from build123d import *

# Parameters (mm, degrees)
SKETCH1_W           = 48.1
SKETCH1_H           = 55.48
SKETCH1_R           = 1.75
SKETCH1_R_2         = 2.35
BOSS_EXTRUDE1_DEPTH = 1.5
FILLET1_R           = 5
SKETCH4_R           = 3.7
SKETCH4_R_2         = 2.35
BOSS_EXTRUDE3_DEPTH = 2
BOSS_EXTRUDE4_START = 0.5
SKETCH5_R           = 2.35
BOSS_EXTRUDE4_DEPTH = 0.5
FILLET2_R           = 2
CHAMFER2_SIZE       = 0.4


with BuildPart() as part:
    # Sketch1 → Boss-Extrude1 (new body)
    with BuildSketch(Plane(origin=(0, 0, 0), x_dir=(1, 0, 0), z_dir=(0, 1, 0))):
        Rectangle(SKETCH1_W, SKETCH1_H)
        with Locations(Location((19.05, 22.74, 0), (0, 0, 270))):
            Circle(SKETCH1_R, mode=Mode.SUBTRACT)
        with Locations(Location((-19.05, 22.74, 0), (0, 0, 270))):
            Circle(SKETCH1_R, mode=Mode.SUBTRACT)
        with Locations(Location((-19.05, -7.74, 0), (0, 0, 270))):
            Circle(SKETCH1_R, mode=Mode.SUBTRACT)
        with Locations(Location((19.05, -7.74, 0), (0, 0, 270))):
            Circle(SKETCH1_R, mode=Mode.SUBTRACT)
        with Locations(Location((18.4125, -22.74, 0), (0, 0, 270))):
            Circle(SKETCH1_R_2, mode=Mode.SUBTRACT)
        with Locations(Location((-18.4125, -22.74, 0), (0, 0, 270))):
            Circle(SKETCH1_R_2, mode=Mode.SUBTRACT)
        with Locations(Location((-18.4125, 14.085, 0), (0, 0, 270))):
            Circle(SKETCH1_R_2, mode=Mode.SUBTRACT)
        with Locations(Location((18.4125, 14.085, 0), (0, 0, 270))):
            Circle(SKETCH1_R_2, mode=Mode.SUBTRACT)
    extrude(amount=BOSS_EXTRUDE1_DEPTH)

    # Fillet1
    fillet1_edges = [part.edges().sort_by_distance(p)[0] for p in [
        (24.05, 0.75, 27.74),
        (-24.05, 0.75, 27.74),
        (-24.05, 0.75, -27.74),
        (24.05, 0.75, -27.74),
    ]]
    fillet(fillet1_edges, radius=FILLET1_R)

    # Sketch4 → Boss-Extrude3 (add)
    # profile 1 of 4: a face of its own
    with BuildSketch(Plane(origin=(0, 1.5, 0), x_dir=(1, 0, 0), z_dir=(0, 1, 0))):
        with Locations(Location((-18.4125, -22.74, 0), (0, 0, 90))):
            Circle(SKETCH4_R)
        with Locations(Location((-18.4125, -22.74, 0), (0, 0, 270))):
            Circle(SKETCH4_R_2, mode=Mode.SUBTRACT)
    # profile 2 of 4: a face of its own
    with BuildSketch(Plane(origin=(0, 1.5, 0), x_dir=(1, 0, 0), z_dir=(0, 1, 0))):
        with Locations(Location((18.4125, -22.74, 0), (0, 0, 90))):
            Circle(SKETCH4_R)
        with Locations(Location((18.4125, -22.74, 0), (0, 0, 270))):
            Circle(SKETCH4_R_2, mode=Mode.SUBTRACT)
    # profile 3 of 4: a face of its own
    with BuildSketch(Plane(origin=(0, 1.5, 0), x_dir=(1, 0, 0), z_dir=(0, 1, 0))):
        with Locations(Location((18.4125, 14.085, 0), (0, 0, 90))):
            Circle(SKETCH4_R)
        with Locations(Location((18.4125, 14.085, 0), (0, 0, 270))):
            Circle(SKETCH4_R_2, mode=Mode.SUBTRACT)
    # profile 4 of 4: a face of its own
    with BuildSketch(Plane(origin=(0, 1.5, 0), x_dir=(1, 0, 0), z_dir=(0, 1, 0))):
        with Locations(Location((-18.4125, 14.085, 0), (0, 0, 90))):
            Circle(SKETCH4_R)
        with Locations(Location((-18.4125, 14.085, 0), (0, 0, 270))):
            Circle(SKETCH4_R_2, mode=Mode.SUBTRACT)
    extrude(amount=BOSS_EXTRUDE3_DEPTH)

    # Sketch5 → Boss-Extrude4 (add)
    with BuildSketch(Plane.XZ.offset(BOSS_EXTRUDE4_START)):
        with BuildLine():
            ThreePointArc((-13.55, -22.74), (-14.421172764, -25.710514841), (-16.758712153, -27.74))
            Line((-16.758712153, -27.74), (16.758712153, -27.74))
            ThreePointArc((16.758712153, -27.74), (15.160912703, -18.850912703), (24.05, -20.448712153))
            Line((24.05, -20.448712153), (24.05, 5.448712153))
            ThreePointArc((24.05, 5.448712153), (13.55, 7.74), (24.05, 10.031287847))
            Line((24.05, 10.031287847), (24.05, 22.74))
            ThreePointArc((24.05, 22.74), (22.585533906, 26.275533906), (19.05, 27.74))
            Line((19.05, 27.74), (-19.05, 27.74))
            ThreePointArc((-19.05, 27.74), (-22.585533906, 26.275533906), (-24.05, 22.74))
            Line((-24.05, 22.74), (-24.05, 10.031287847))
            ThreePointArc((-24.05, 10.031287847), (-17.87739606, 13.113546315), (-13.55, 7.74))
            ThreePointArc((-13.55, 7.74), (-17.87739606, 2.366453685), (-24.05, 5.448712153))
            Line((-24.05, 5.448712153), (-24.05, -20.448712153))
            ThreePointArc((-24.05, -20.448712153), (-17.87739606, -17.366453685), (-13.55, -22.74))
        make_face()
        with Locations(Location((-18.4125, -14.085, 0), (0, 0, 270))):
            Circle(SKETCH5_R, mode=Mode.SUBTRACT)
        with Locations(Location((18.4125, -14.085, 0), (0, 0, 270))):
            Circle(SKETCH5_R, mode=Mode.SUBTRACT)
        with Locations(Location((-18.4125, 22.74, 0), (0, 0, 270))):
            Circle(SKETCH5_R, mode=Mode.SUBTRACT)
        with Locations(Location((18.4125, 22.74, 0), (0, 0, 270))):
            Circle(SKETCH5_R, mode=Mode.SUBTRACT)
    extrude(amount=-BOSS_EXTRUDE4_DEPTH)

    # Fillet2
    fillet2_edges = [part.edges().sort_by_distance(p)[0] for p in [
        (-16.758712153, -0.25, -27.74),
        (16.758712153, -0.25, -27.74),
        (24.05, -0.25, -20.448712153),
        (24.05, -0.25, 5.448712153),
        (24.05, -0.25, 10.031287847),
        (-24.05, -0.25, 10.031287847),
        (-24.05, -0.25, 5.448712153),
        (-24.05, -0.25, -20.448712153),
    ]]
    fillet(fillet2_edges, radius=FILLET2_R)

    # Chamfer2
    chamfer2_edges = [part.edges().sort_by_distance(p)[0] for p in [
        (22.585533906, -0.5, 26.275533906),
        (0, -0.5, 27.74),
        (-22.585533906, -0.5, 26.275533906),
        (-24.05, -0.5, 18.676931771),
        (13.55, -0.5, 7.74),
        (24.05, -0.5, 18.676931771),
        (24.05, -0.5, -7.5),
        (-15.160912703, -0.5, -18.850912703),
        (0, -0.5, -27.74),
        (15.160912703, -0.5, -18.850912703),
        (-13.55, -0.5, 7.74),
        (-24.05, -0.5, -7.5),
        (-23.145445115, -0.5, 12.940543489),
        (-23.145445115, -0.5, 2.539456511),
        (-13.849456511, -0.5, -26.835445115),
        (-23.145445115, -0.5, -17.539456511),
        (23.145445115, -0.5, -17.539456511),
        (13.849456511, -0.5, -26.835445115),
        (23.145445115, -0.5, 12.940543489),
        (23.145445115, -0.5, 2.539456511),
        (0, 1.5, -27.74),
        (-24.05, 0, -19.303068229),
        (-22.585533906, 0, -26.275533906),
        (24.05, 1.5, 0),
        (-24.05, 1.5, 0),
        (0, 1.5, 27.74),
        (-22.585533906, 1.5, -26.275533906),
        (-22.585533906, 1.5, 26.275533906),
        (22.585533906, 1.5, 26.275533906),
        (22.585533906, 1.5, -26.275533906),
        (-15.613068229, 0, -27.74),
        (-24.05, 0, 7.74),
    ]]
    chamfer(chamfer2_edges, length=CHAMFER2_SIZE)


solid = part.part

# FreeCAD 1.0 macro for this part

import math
import FreeCAD as App
import Part
import Sketcher

V = App.Vector


def edges_at(feature, points):
    """Names of the edges that pass closest to the given points."""
    edges = feature.Shape.Edges
    near = lambda p: min(range(len(edges)), key=lambda i: edges[i].distToShape(Part.Vertex(*p))[0])
    return sorted({f"Edge{near(p) + 1}" for p in points})

doc = App.newDocument("Part")
body = doc.addObject("PartDesign::Body", "Body")

sketch1 = body.newObject("Sketcher::SketchObject", "Sketch")
sketch1.AttachmentSupport = (doc.getObject("XZ_Plane"), [""])
sketch1.MapMode = "FlatFace"
sketch1.addGeometry(Part.LineSegment(V(-24.05, -27.74, 0), V(-24.05, 27.74, 0)), False)
sketch1.addGeometry(Part.LineSegment(V(-24.05, 27.74, 0), V(24.05, 27.74, 0)), False)
sketch1.addGeometry(Part.LineSegment(V(24.05, 27.74, 0), V(24.05, -27.74, 0)), False)
sketch1.addGeometry(Part.LineSegment(V(24.05, -27.74, 0), V(-24.05, -27.74, 0)), False)
sketch1.addGeometry(Part.Circle(V(-18.4125, 22.74, 0), V(0, 0, 1), 2.35), False)
sketch1.addGeometry(Part.Circle(V(-19.05, 7.74, 0), V(0, 0, 1), 1.75), False)
sketch1.addGeometry(Part.Circle(V(18.4125, 22.74, 0), V(0, 0, 1), 2.35), False)
sketch1.addGeometry(Part.Circle(V(19.05, 7.74, 0), V(0, 0, 1), 1.75), False)
sketch1.addGeometry(Part.Circle(V(-18.4125, -14.085, 0), V(0, 0, 1), 2.35), False)
sketch1.addGeometry(Part.Circle(V(-19.05, -22.74, 0), V(0, 0, 1), 1.75), False)
sketch1.addGeometry(Part.Circle(V(18.4125, -14.085, 0), V(0, 0, 1), 2.35), False)
sketch1.addGeometry(Part.Circle(V(19.05, -22.74, 0), V(0, 0, 1), 1.75), False)
sketch1.addConstraint(Sketcher.Constraint("Coincident", 0, 2, 1, 1))
sketch1.addConstraint(Sketcher.Constraint("Coincident", 1, 2, 2, 1))
sketch1.addConstraint(Sketcher.Constraint("Coincident", 2, 2, 3, 1))
sketch1.addConstraint(Sketcher.Constraint("Coincident", 3, 2, 0, 1))
sketch1.addConstraint(Sketcher.Constraint("Vertical", 0))
sketch1.addConstraint(Sketcher.Constraint("Horizontal", 1))
sketch1.addConstraint(Sketcher.Constraint("Vertical", 2))
sketch1.addConstraint(Sketcher.Constraint("Horizontal", 3))
sketch1.addConstraint(Sketcher.Constraint("Equal", 4, 6))
sketch1.addConstraint(Sketcher.Constraint("Equal", 5, 7))
sketch1.addConstraint(Sketcher.Constraint("Equal", 6, 8))
sketch1.addConstraint(Sketcher.Constraint("Equal", 7, 9))
sketch1.addConstraint(Sketcher.Constraint("Equal", 8, 10))
sketch1.addConstraint(Sketcher.Constraint("Equal", 9, 11))
sketch1.addConstraint(Sketcher.Constraint("Symmetric", 0, 2, 2, 2, -1, 1))
sketch1.addConstraint(Sketcher.Constraint("Symmetric", 4, 3, 6, 3, -2))
sketch1.addConstraint(Sketcher.Constraint("Symmetric", 5, 3, 7, 3, -2))
sketch1.addConstraint(Sketcher.Constraint("Symmetric", 8, 3, 10, 3, -2))
sketch1.addConstraint(Sketcher.Constraint("Symmetric", 9, 3, 11, 3, -2))
sketch1.addConstraint(Sketcher.Constraint("Vertical", 4, 3, 8, 3))
sketch1.addConstraint(Sketcher.Constraint("Vertical", 5, 3, 9, 3))
sketch1.addConstraint(Sketcher.Constraint("Diameter", 4, 4.7))
sketch1.addConstraint(Sketcher.Constraint("Diameter", 5, 3.5))
sketch1.addConstraint(Sketcher.Constraint("DistanceX", 1, 1, 1, 2, 48.1))
sketch1.addConstraint(Sketcher.Constraint("DistanceY", 5, 3, 4, 3, 15.0))
sketch1.addConstraint(Sketcher.Constraint("DistanceY", 4, 3, 0, 2, 5.0))
sketch1.addConstraint(Sketcher.Constraint("DistanceX", 0, 2, 5, 3, 5.0))
sketch1.addConstraint(Sketcher.Constraint("DistanceY", 2, 2, 11, 3, 5.0))
sketch1.addConstraint(Sketcher.Constraint("DistanceY", 0, 1, 0, 2, 55.48))
sketch1.addConstraint(Sketcher.Constraint("DistanceY", 8, 3, -1, 1, 14.085))
sketch1.addConstraint(Sketcher.Constraint("DistanceX", 4, 3, 6, 3, 36.825))
pad1 = body.newObject("PartDesign::Pad", "Pad")
pad1.Profile = sketch1
pad1.Length = 1.5
pad1.Reversed = True
doc.recompute()

fillet = body.newObject("PartDesign::Fillet", "Fillet")
fillet.Base = (pad1, edges_at(pad1, [
    (24.05, 0.75, 27.74),
    (-24.05, 0.75, 27.74),
    (-24.05, 0.75, -27.74),
    (24.05, 0.75, -27.74),
]))
fillet.Radius = 5

sketch2 = body.newObject("Sketcher::SketchObject", "Sketch001")
sketch2.AttachmentSupport = (doc.getObject("XZ_Plane"), [""])
sketch2.MapMode = "FlatFace"
sketch2.AttachmentOffset = App.Placement(V(0, 0, -1.5), App.Rotation())
sketch2.addGeometry(Part.Circle(V(-18.4125, 22.74, 0), V(0, 0, 1), 3.7), False)
sketch2.addGeometry(Part.Circle(V(-18.4125, 22.74, 0), V(0, 0, 1), 2.35), False)
sketch2.addGeometry(Part.Circle(V(18.4125, 22.74, 0), V(0, 0, 1), 3.7), False)
sketch2.addGeometry(Part.Circle(V(18.4125, 22.74, 0), V(0, 0, 1), 2.35), False)
sketch2.addGeometry(Part.Circle(V(18.4125, -14.085, 0), V(0, 0, 1), 3.7), False)
sketch2.addGeometry(Part.Circle(V(18.4125, -14.085, 0), V(0, 0, 1), 2.35), False)
sketch2.addGeometry(Part.Circle(V(-18.4125, -14.085, 0), V(0, 0, 1), 3.7), False)
sketch2.addGeometry(Part.Circle(V(-18.4125, -14.085, 0), V(0, 0, 1), 2.35), False)
sketch2.addConstraint(Sketcher.Constraint("Coincident", 1, 3, 0, 3))
sketch2.addConstraint(Sketcher.Constraint("Coincident", 3, 3, 2, 3))
sketch2.addConstraint(Sketcher.Constraint("Coincident", 5, 3, 4, 3))
sketch2.addConstraint(Sketcher.Constraint("Coincident", 7, 3, 6, 3))
sketch2.addConstraint(Sketcher.Constraint("Equal", 0, 2))
sketch2.addConstraint(Sketcher.Constraint("Equal", 1, 3))
sketch2.addConstraint(Sketcher.Constraint("Equal", 2, 4))
sketch2.addConstraint(Sketcher.Constraint("Equal", 3, 5))
sketch2.addConstraint(Sketcher.Constraint("Equal", 4, 6))
sketch2.addConstraint(Sketcher.Constraint("Equal", 5, 7))
sketch2.addConstraint(Sketcher.Constraint("Symmetric", 0, 3, 2, 3, -2))
sketch2.addConstraint(Sketcher.Constraint("Symmetric", 4, 3, 6, 3, -2))
sketch2.addConstraint(Sketcher.Constraint("Vertical", 3, 3, 4, 3))
sketch2.addConstraint(Sketcher.Constraint("Diameter", 0, 7.4))
sketch2.addConstraint(Sketcher.Constraint("Diameter", 1, 4.7))
sketch2.addConstraint(Sketcher.Constraint("DistanceY", -1, 1, 0, 3, 22.74))
sketch2.addConstraint(Sketcher.Constraint("DistanceY", 4, 3, -1, 1, 14.085))
sketch2.addConstraint(Sketcher.Constraint("DistanceX", 0, 3, 2, 3, 36.825))
pad2 = body.newObject("PartDesign::Pad", "Pad001")
pad2.Profile = sketch2
pad2.Length = 2
pad2.Reversed = True

sketch3 = body.newObject("Sketcher::SketchObject", "Sketch002")
sketch3.AttachmentSupport = (doc.getObject("XZ_Plane"), [""])
sketch3.MapMode = "FlatFace"
sketch3.AttachmentOffset = App.Placement(V(0, 0, 0.5), App.Rotation())
sketch3.addGeometry(Part.ArcOfCircle(Part.Circle(V(-19.05, -22.74, 0), V(0, 0, 1), 5.5), math.radians(-65.380023), math.radians(0)), False)
sketch3.addGeometry(Part.LineSegment(V(-16.758712, -27.74, 0), V(16.758712, -27.74, 0)), False)
sketch3.addGeometry(Part.ArcOfCircle(Part.Circle(V(19.05, -22.74, 0), V(0, 0, 1), 5.5), math.radians(24.619977), math.radians(245.380023)), False)
sketch3.addGeometry(Part.LineSegment(V(24.05, -20.448712, 0), V(24.05, 5.448712, 0)), False)
sketch3.addGeometry(Part.ArcOfCircle(Part.Circle(V(19.05, 7.74, 0), V(0, 0, 1), 5.5), math.radians(24.619977), math.radians(335.380023)), False)
sketch3.addGeometry(Part.LineSegment(V(24.05, 10.031288, 0), V(24.05, 22.74, 0)), False)
sketch3.addGeometry(Part.ArcOfCircle(Part.Circle(V(19.05, 22.74, 0), V(0, 0, 1), 5), math.radians(0), math.radians(90)), False)
sketch3.addGeometry(Part.LineSegment(V(19.05, 27.74, 0), V(-19.05, 27.74, 0)), False)
sketch3.addGeometry(Part.ArcOfCircle(Part.Circle(V(-19.05, 22.74, 0), V(0, 0, 1), 5), math.radians(90), math.radians(180)), False)
sketch3.addGeometry(Part.LineSegment(V(-24.05, 22.74, 0), V(-24.05, 10.031288, 0)), False)
sketch3.addGeometry(Part.ArcOfCircle(Part.Circle(V(-19.05, 7.74, 0), V(0, 0, 1), 5.5), math.radians(0), math.radians(155.380023)), False)
sketch3.addGeometry(Part.ArcOfCircle(Part.Circle(V(-19.05, 7.74, 0), V(0, 0, 1), 5.5), math.radians(-155.380023), math.radians(0)), False)
sketch3.addGeometry(Part.LineSegment(V(-24.05, 5.448712, 0), V(-24.05, -20.448712, 0)), False)
sketch3.addGeometry(Part.ArcOfCircle(Part.Circle(V(-19.05, -22.74, 0), V(0, 0, 1), 5.5), math.radians(0), math.radians(155.380023)), False)
sketch3.addGeometry(Part.Circle(V(-18.4125, -14.085, 0), V(0, 0, 1), 2.35), False)
sketch3.addGeometry(Part.Circle(V(18.4125, -14.085, 0), V(0, 0, 1), 2.35), False)
sketch3.addGeometry(Part.Circle(V(-18.4125, 22.74, 0), V(0, 0, 1), 2.35), False)
sketch3.addGeometry(Part.Circle(V(18.4125, 22.74, 0), V(0, 0, 1), 2.35), False)
sketch3.addConstraint(Sketcher.Constraint("Coincident", 0, 1, 1, 1))
sketch3.addConstraint(Sketcher.Constraint("Coincident", 1, 2, 2, 2))
sketch3.addConstraint(Sketcher.Constraint("Coincident", 2, 1, 3, 1))
sketch3.addConstraint(Sketcher.Constraint("Coincident", 3, 2, 4, 2))
sketch3.addConstraint(Sketcher.Constraint("Coincident", 4, 1, 5, 1))
sketch3.addConstraint(Sketcher.Constraint("Tangent", 5, 2, 6, 1))
sketch3.addConstraint(Sketcher.Constraint("Tangent", 6, 2, 7, 1))
sketch3.addConstraint(Sketcher.Constraint("Tangent", 7, 2, 8, 1))
sketch3.addConstraint(Sketcher.Constraint("Tangent", 8, 2, 9, 1))
sketch3.addConstraint(Sketcher.Constraint("Coincident", 9, 2, 10, 2))
sketch3.addConstraint(Sketcher.Constraint("Tangent", 10, 1, 11, 2))
sketch3.addConstraint(Sketcher.Constraint("Coincident", 11, 1, 12, 1))
sketch3.addConstraint(Sketcher.Constraint("Coincident", 12, 2, 13, 2))
sketch3.addConstraint(Sketcher.Constraint("Tangent", 13, 1, 0, 2))
sketch3.addConstraint(Sketcher.Constraint("Horizontal", 1))
sketch3.addConstraint(Sketcher.Constraint("Vertical", 3))
sketch3.addConstraint(Sketcher.Constraint("Vertical", 5))
sketch3.addConstraint(Sketcher.Constraint("Horizontal", 7))
sketch3.addConstraint(Sketcher.Constraint("Vertical", 9))
sketch3.addConstraint(Sketcher.Constraint("Vertical", 12))
sketch3.addConstraint(Sketcher.Constraint("Equal", 0, 2))
sketch3.addConstraint(Sketcher.Constraint("Equal", 2, 4))
sketch3.addConstraint(Sketcher.Constraint("Equal", 6, 8))
sketch3.addConstraint(Sketcher.Constraint("Equal", 4, 10))
sketch3.addConstraint(Sketcher.Constraint("Equal", 10, 11))
sketch3.addConstraint(Sketcher.Constraint("Equal", 11, 13))
sketch3.addConstraint(Sketcher.Constraint("Equal", 14, 15))
sketch3.addConstraint(Sketcher.Constraint("Equal", 15, 16))
sketch3.addConstraint(Sketcher.Constraint("Equal", 16, 17))
sketch3.addConstraint(Sketcher.Constraint("Symmetric", 0, 3, 6, 3, -1, 1))
sketch3.addConstraint(Sketcher.Constraint("Symmetric", 2, 3, 8, 3, -1, 1))
sketch3.addConstraint(Sketcher.Constraint("Symmetric", 4, 3, 10, 3, -2))
sketch3.addConstraint(Sketcher.Constraint("Symmetric", 14, 3, 15, 3, -2))
sketch3.addConstraint(Sketcher.Constraint("Symmetric", 16, 3, 17, 3, -2))
sketch3.addConstraint(Sketcher.Constraint("Symmetric", 2, 1, 12, 2, -2))
sketch3.addConstraint(Sketcher.Constraint("Horizontal", 8, 3, 16, 3))
sketch3.addConstraint(Sketcher.Constraint("Horizontal", 11, 3, 10, 1))
sketch3.addConstraint(Sketcher.Constraint("Horizontal", 2, 3, 13, 1))
sketch3.addConstraint(Sketcher.Constraint("Vertical", 2, 3, 4, 3))
sketch3.addConstraint(Sketcher.Constraint("Vertical", 14, 3, 16, 3))
sketch3.addConstraint(Sketcher.Constraint("Vertical", 3, 2, 4, 1))
sketch3.addConstraint(Sketcher.Constraint("Radius", 6, 5.0))
sketch3.addConstraint(Sketcher.Constraint("Diameter", 14, 4.7))
sketch3.addConstraint(Sketcher.Constraint("Radius", 0, 5.5))
sketch3.addConstraint(Sketcher.Constraint("DistanceX", 7, 2, 7, 1, 38.1))
sketch3.addConstraint(Sketcher.Constraint("DistanceY", 4, 3, 6, 3, 15.0))
sketch3.addConstraint(Sketcher.Constraint("DistanceY", 0, 1, 0, 3, 5.0))
sketch3.addConstraint(Sketcher.Constraint("DistanceY", 0, 3, -1, 1, 22.74))
sketch3.addConstraint(Sketcher.Constraint("DistanceY", 14, 3, -1, 1, 14.085))
sketch3.addConstraint(Sketcher.Constraint("DistanceX", 14, 3, 15, 3, 36.825))
pad3 = body.newObject("PartDesign::Pad", "Pad002")
pad3.Profile = sketch3
pad3.Length = 0.5
pad3.Reversed = True
doc.recompute()

fillet2 = body.newObject("PartDesign::Fillet", "Fillet001")
fillet2.Base = (pad3, edges_at(pad3, [
    (-16.759, -0.25, -27.74),
    (16.759, -0.25, -27.74),
    (24.05, -0.25, -20.449),
    (24.05, -0.25, 5.449),
    (24.05, -0.25, 10.031),
    (-24.05, -0.25, 10.031),
    (-24.05, -0.25, 5.449),
    (-24.05, -0.25, -20.449),
]))
fillet2.Radius = 2
doc.recompute()

chamfer = body.newObject("PartDesign::Chamfer", "Chamfer")
chamfer.Base = (fillet2, edges_at(fillet2, [
    (22.586, -0.5, 26.276),
    (0, -0.5, 27.74),
    (-22.586, -0.5, 26.276),
    (-24.05, -0.5, 18.677),
    (13.55, -0.5, 7.74),
    (24.05, -0.5, 18.677),
    (24.05, -0.5, -7.5),
    (-16.038, -0.5, -18.138),
    (0, -0.5, -27.74),
    (15.161, -0.5, -18.851),
    (-16.038, -0.5, 12.342),
    (-24.05, -0.5, -7.5),
    (-23.145, -0.5, 12.941),
    (-23.145, -0.5, 2.539),
    (-13.849, -0.5, -26.835),
    (-23.145, -0.5, -17.539),
    (23.145, -0.5, -17.539),
    (13.849, -0.5, -26.835),
    (23.145, -0.5, 12.941),
    (23.145, -0.5, 2.539),
    (0, 1.5, -27.74),
    (-24.05, 0, -19.303),
    (-22.586, 0, -26.276),
    (24.05, 1.5, 0),
    (-24.05, 1.5, 0),
    (0, 1.5, 27.74),
    (-22.586, 1.5, -26.276),
    (-22.586, 1.5, 26.276),
    (22.586, 1.5, 26.276),
    (22.586, 1.5, -26.276),
    (-15.613, 0, -27.74),
    (-24.05, 0, 7.74),
]))
chamfer.Size = 0.4

doc.recompute()
